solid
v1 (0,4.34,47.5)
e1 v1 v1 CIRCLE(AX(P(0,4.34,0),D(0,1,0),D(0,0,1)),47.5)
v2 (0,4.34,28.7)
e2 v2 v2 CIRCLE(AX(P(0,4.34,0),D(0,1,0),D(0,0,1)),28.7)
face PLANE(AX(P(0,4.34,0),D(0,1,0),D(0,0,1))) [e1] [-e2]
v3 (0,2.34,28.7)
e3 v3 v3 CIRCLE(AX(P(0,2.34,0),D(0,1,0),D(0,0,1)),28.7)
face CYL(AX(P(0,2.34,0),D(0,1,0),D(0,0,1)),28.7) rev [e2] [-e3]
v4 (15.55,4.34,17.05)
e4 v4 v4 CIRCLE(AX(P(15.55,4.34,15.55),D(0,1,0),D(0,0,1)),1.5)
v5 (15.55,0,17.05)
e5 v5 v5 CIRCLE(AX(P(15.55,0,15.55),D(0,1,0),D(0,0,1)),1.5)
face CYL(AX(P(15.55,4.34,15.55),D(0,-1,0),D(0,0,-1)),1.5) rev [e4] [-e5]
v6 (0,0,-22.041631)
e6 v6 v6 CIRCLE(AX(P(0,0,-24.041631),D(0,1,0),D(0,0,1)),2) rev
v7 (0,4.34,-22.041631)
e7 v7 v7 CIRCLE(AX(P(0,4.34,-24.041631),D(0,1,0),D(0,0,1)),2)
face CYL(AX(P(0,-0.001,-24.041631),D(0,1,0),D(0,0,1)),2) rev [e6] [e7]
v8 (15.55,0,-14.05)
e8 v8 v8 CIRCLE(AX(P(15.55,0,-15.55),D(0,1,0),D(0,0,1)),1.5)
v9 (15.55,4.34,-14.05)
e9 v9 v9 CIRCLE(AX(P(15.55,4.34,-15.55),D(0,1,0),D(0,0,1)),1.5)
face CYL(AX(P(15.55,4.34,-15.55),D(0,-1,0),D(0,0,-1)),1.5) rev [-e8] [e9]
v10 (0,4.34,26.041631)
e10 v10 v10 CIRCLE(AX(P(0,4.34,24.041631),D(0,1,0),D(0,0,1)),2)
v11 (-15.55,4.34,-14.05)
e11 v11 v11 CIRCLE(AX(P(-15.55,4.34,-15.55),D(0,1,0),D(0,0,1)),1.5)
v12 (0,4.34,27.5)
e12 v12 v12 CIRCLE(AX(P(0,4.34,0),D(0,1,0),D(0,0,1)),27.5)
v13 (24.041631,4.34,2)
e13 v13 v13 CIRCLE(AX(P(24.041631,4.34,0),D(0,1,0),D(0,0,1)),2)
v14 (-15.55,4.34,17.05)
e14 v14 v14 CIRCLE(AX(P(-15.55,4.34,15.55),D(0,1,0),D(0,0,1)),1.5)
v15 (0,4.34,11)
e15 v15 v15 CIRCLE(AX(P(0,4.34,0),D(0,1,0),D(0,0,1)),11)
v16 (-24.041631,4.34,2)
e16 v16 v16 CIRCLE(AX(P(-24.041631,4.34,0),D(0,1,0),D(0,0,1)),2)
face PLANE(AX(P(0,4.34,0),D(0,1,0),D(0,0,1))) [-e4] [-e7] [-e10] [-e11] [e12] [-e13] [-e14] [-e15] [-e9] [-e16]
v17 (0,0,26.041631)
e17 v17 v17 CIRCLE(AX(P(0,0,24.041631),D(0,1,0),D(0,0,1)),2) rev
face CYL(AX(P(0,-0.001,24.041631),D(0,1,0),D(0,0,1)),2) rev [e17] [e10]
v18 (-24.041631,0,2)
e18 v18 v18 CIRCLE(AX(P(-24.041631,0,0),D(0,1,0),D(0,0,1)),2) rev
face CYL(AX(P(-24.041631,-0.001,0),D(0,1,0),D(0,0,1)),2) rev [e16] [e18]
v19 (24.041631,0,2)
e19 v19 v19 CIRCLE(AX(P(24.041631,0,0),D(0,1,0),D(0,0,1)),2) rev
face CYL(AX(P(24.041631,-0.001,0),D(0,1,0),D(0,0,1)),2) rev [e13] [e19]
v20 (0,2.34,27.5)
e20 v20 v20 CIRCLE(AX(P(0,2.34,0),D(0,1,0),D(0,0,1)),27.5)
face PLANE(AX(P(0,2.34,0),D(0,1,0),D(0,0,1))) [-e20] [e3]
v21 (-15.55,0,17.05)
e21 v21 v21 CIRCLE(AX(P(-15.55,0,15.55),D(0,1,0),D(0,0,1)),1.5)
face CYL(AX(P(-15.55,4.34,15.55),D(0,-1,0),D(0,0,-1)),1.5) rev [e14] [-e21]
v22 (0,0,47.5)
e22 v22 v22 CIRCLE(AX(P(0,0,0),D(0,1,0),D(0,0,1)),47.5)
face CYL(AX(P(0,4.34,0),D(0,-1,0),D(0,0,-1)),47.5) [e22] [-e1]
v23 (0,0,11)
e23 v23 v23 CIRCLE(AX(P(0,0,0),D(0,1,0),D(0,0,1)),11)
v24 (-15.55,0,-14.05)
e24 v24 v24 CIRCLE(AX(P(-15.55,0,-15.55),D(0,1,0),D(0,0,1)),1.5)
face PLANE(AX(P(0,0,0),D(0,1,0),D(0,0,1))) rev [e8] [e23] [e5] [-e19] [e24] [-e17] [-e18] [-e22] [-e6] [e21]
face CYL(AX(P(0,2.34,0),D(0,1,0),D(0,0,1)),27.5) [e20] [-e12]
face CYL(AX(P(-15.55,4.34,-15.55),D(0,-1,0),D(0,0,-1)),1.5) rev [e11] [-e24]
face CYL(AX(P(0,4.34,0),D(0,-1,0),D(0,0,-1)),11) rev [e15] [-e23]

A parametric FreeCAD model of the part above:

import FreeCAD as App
import Part
import Sketcher

doc = App.newDocument("Part")
body = doc.addObject("PartDesign::Body", "Body")

# Sketch on XZ plane
sketch1 = body.newObject("Sketcher::SketchObject", "Sketch")
sketch1.AttachmentSupport = (doc.getObject("XZ_Plane"), [""])
sketch1.MapMode = "FlatFace"
sketch1.addGeometry(Part.Circle(App.Vector(0, 0, 0), App.Vector(0, 0, 1), 47.5), False)
sketch1.addGeometry(Part.Circle(App.Vector(-15.6, 15.6, 0), App.Vector(0, 0, 1), 1.5), False)
sketch1.addGeometry(Part.Circle(App.Vector(15.6, 15.6, 0), App.Vector(0, 0, 1), 1.5), False)
sketch1.addGeometry(Part.Circle(App.Vector(-15.6, -15.6, 0), App.Vector(0, 0, 1), 1.5), False)
sketch1.addGeometry(Part.Circle(App.Vector(0, 0, 0), App.Vector(0, 0, 1), 11), False)
sketch1.addGeometry(Part.Circle(App.Vector(15.6, -15.6, 0), App.Vector(0, 0, 1), 1.5), False)
sketch1.addConstraint(Sketcher.Constraint("Coincident", 0, 3, -1, 1))
sketch1.addConstraint(Sketcher.Constraint("Coincident", 4, 3, -1, 1))
sketch1.addConstraint(Sketcher.Constraint("Equal", 1, 2))
sketch1.addConstraint(Sketcher.Constraint("Equal", 2, 3))
sketch1.addConstraint(Sketcher.Constraint("Equal", 3, 5))
sketch1.addConstraint(Sketcher.Constraint("Symmetric", 2, 3, 3, 3, -1, 1))
sketch1.addConstraint(Sketcher.Constraint("Symmetric", 1, 3, 5, 3, -1, 1))
sketch1.addConstraint(Sketcher.Constraint("Symmetric", 1, 3, 2, 3, -2))
sketch1.addConstraint(Sketcher.Constraint("Diameter", 0, 95.0))
sketch1.addConstraint(Sketcher.Constraint("Diameter", 1, 3.0))
sketch1.addConstraint(Sketcher.Constraint("Diameter", 4, 22.0))
sketch1.addConstraint(Sketcher.Constraint("DistanceX", 1, 3, 2, 3, 31.1))
sketch1.addConstraint(Sketcher.Constraint("DistanceY", 3, 3, 1, 3, 31.1))
pad1 = body.newObject("PartDesign::Pad", "Pad")
pad1.Profile = sketch1
pad1.Length = 4.34
pad1.Reversed = True

# Sketch on XZ plane
sketch2 = body.newObject("Sketcher::SketchObject", "Sketch001")
sketch2.AttachmentSupport = (doc.getObject("XZ_Plane"), [""])
sketch2.MapMode = "FlatFace"
sketch2.AttachmentOffset = App.Placement(App.Vector(0, 0, -4.34), App.Rotation())
sketch2.addGeometry(Part.Circle(App.Vector(0, 0, 0), App.Vector(0, 0, 1), 29), False)
sketch2.addGeometry(Part.Circle(App.Vector(0, 0, 0), App.Vector(0, 0, 1), 28), False)
sketch2.addConstraint(Sketcher.Constraint("Coincident", 0, 3, -1, 1))
sketch2.addConstraint(Sketcher.Constraint("Coincident", 1, 3, -1, 1))
sketch2.addConstraint(Sketcher.Constraint("Diameter", 1, 55.0))
sketch2.addConstraint(Sketcher.Constraint("Diameter", 0, 57.4))
pocket1 = body.newObject("PartDesign::Pocket", "Pocket")
pocket1.Profile = sketch2
pocket1.Length = 2
pocket1.Reversed = True

# Sketch on XZ plane
sketch3 = body.newObject("Sketcher::SketchObject", "Sketch002")
sketch3.AttachmentSupport = (doc.getObject("XZ_Plane"), [""])
sketch3.MapMode = "FlatFace"
sketch3.AttachmentOffset = App.Placement(App.Vector(0, 0, -4.34), App.Rotation())
sketch3.addGeometry(Part.Circle(App.Vector(24, 0, 0), App.Vector(0, 0, 1), 2), False)
sketch3.addConstraint(Sketcher.Constraint("PointOnObject", 0, 3, -1))
sketch3.addConstraint(Sketcher.Constraint("Diameter", 0, 4.0))
sketch3.addConstraint(Sketcher.Constraint("DistanceX", -1, 1, 0, 3, 24.041631))
pocket2 = body.newObject("PartDesign::Pocket", "Pocket001")
pocket2.Profile = sketch3
pocket2.Type = "UpToFirst"
pocket2.Reversed = True

# Sketch on XZ plane
sketch4 = body.newObject("Sketcher::SketchObject", "Sketch003")
sketch4.AttachmentSupport = (doc.getObject("XZ_Plane"), [""])
sketch4.MapMode = "FlatFace"
sketch4.AttachmentOffset = App.Placement(App.Vector(0, 0, -4.34), App.Rotation())
sketch4.addGeometry(Part.Circle(App.Vector(0, 24, 0), App.Vector(0, 0, 1), 2), False)
sketch4.addConstraint(Sketcher.Constraint("PointOnObject", 0, 3, -2))
sketch4.addConstraint(Sketcher.Constraint("Diameter", 0, 4.0))
sketch4.addConstraint(Sketcher.Constraint("DistanceY", -1, 1, 0, 3, 24.041631))
pocket3 = body.newObject("PartDesign::Pocket", "Pocket002")
pocket3.Profile = sketch4
pocket3.Type = "UpToFirst"
pocket3.Reversed = True

# Sketch on XZ plane
sketch5 = body.newObject("Sketcher::SketchObject", "Sketch004")
sketch5.AttachmentSupport = (doc.getObject("XZ_Plane"), [""])
sketch5.MapMode = "FlatFace"
sketch5.AttachmentOffset = App.Placement(App.Vector(0, 0, -4.34), App.Rotation())
sketch5.addGeometry(Part.Circle(App.Vector(-24, 0, 0), App.Vector(0, 0, 1), 2), False)
sketch5.addConstraint(Sketcher.Constraint("PointOnObject", 0, 3, -1))
sketch5.addConstraint(Sketcher.Constraint("Diameter", 0, 4.0))
sketch5.addConstraint(Sketcher.Constraint("DistanceX", 0, 3, -1, 1, 24.041631))
pocket4 = body.newObject("PartDesign::Pocket", "Pocket003")
pocket4.Profile = sketch5
pocket4.Type = "UpToFirst"
pocket4.Reversed = True

# Sketch on XZ plane
sketch6 = body.newObject("Sketcher::SketchObject", "Sketch005")
sketch6.AttachmentSupport = (doc.getObject("XZ_Plane"), [""])
sketch6.MapMode = "FlatFace"
sketch6.AttachmentOffset = App.Placement(App.Vector(0, 0, -4.34), App.Rotation())
sketch6.addGeometry(Part.Circle(App.Vector(0, -24, 0), App.Vector(0, 0, 1), 2), False)
sketch6.addConstraint(Sketcher.Constraint("PointOnObject", 0, 3, -2))
sketch6.addConstraint(Sketcher.Constraint("Diameter", 0, 4.0))
sketch6.addConstraint(Sketcher.Constraint("DistanceY", 0, 3, -1, 1, 24.041631))
pocket5 = body.newObject("PartDesign::Pocket", "Pocket004")
pocket5.Profile = sketch6
pocket5.Type = "UpToFirst"
pocket5.Reversed = True

doc.recompute()
